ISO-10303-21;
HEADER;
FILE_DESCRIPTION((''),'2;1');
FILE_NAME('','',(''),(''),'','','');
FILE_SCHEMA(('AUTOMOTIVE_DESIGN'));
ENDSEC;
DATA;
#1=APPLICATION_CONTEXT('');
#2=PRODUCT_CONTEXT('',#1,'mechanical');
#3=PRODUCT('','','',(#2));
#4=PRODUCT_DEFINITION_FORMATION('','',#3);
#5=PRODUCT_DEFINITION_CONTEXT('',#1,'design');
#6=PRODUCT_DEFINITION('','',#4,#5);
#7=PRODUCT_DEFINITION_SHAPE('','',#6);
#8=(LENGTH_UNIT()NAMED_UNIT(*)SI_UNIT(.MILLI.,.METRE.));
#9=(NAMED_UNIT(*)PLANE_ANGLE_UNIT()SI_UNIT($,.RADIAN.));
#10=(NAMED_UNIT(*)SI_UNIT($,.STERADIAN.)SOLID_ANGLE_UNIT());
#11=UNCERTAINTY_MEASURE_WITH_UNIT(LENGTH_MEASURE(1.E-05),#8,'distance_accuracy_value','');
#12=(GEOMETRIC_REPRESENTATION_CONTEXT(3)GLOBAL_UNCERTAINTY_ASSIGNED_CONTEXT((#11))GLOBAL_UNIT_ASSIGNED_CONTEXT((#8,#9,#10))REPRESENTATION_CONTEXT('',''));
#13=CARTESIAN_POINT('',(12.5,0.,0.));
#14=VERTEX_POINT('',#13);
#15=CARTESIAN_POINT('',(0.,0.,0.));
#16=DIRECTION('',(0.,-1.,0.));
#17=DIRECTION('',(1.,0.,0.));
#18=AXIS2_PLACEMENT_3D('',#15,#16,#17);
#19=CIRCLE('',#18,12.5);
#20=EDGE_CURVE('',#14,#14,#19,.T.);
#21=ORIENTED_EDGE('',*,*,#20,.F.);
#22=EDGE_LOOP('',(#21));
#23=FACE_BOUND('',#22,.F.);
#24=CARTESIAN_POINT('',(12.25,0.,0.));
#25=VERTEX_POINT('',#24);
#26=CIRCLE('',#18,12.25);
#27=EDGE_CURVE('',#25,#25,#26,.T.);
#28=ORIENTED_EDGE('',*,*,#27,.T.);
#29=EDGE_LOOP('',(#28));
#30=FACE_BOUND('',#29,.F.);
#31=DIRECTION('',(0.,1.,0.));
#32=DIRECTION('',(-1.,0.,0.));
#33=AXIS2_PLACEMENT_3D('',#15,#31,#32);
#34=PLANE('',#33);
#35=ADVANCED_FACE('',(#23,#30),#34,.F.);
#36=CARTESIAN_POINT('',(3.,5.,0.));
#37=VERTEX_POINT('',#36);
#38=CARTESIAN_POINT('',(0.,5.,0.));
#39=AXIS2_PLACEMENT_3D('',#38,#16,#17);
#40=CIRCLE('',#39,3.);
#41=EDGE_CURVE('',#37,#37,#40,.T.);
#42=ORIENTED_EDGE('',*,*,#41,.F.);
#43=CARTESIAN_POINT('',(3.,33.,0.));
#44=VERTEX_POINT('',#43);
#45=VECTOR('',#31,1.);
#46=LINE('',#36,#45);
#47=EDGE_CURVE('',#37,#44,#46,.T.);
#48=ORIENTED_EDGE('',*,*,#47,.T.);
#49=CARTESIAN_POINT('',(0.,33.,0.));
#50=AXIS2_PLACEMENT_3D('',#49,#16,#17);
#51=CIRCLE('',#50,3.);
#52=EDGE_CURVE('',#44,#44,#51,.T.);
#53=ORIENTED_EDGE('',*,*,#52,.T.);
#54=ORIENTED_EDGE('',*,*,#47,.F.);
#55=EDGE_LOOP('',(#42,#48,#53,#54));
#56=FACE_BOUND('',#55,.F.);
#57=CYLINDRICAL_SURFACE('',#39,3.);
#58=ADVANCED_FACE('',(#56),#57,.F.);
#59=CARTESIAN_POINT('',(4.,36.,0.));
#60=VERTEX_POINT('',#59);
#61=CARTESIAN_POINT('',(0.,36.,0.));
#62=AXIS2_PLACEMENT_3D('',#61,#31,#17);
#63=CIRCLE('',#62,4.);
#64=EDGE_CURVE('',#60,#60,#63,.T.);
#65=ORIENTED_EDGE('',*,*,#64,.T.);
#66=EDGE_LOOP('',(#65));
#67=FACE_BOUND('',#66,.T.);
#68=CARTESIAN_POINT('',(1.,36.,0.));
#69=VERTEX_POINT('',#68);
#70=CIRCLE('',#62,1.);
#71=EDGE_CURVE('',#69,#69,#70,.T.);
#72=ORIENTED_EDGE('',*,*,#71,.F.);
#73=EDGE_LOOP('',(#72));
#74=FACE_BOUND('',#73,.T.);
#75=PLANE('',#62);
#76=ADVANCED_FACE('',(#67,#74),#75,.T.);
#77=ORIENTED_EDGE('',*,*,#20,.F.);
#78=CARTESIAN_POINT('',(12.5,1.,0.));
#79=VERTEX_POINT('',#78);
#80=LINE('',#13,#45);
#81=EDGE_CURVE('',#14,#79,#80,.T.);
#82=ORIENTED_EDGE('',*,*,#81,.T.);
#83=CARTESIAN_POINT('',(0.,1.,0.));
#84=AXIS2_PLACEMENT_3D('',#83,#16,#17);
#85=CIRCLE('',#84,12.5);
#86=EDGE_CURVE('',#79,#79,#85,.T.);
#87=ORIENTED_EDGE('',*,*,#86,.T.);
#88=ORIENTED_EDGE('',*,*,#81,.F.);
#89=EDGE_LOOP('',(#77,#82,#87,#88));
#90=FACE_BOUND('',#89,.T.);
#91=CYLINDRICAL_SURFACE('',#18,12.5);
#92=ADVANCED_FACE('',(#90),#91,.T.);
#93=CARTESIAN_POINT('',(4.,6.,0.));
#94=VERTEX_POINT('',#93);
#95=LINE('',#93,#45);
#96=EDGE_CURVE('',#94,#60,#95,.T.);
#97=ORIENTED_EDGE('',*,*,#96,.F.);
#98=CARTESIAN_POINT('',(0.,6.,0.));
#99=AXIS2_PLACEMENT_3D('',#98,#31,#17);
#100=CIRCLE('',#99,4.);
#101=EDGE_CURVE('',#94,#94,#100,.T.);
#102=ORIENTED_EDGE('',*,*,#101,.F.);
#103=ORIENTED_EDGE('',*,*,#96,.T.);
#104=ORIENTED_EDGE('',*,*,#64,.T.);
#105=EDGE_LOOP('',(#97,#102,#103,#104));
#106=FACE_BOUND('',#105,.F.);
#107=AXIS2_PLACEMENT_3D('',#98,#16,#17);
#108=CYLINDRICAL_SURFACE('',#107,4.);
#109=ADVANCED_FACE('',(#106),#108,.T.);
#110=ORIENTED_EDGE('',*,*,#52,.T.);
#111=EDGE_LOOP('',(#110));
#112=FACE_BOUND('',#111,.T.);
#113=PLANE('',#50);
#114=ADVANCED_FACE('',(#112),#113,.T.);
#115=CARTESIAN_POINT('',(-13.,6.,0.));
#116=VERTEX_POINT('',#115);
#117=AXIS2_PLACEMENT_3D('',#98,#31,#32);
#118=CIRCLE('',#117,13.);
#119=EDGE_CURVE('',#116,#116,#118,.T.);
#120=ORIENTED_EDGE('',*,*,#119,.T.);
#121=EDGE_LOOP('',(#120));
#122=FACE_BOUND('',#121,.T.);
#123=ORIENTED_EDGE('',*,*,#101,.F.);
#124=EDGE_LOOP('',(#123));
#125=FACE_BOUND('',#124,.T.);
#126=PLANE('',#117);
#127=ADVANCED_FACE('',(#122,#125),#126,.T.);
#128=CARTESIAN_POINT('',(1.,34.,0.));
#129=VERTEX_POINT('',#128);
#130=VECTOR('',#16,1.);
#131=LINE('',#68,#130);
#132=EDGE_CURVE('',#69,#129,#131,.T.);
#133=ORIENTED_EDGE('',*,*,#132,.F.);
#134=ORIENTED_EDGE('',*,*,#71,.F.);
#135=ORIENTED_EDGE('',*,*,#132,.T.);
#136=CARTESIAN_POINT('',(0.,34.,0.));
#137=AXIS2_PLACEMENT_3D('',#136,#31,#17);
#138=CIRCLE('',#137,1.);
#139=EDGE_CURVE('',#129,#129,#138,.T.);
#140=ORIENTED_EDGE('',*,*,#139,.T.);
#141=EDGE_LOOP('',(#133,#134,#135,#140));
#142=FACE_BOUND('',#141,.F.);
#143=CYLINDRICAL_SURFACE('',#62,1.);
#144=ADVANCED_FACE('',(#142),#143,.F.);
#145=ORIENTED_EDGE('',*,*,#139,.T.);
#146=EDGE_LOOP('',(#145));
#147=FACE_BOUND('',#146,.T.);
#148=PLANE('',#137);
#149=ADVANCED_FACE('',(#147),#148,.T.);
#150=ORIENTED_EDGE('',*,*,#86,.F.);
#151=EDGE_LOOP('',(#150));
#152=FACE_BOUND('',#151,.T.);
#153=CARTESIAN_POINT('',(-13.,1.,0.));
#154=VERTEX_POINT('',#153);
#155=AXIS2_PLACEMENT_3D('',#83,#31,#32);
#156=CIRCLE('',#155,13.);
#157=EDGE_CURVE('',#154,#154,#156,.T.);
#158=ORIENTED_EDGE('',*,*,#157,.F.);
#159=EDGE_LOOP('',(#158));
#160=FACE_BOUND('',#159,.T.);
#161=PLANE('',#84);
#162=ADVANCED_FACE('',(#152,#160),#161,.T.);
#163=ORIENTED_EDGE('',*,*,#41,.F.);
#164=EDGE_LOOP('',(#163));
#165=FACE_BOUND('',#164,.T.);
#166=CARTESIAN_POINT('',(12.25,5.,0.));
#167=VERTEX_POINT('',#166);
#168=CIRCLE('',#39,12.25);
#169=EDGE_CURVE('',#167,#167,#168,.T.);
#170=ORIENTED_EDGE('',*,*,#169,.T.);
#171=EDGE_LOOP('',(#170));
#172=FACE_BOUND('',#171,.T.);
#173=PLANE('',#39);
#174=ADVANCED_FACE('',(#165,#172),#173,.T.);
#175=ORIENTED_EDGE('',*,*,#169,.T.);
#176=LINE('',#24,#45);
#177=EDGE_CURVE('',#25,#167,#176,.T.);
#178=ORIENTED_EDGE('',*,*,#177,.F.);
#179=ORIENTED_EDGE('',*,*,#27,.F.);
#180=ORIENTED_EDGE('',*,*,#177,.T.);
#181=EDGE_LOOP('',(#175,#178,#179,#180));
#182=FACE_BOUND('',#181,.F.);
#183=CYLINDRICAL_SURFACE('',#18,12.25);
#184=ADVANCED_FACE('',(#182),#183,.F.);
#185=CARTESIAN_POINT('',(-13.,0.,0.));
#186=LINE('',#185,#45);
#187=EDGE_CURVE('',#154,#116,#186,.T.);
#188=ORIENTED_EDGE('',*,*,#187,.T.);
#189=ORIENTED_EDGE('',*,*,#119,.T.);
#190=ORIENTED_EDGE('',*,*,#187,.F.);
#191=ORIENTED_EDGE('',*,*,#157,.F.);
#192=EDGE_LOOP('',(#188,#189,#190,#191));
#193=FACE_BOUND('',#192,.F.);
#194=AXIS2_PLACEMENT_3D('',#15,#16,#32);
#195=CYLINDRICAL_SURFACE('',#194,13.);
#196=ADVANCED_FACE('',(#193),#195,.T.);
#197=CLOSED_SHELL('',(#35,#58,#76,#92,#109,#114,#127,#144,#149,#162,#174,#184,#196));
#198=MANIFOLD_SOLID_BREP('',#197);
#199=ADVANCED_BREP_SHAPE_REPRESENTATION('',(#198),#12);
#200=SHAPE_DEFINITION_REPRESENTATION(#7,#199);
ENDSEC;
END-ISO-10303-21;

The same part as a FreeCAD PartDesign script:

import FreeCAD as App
import Part
import Sketcher

doc = App.newDocument("Part")
body = doc.addObject("PartDesign::Body", "Body")

# Sketch on XZ plane
sketch1 = doc.addObject("Sketcher::SketchObject", "Sketch")
body.addObject(sketch1)
sketch1.AttachmentSupport = (doc.XZ_Plane, [""])
sketch1.MapMode = "FlatFace"
sketch1.addGeometry(Part.Circle(App.Vector(0, 0, 0), App.Vector(0, 0, 1), 13), False)
sketch1.addConstraint(Sketcher.Constraint("Coincident", 0, 3, -1, 1))
sketch1.addConstraint(Sketcher.Constraint("Diameter", 0, 26.0))
pad1 = doc.addObject("PartDesign::Pad", "Pad")
body.addObject(pad1)
pad1.Profile = sketch1
pad1.Length = 6
pad1.Reversed = True

# Sketch on XZ plane
sketch2 = doc.addObject("Sketcher::SketchObject", "Sketch001")
body.addObject(sketch2)
sketch2.AttachmentSupport = (doc.XZ_Plane, [""])
sketch2.MapMode = "FlatFace"
sketch2.addGeometry(Part.Circle(App.Vector(0, 0, 0), App.Vector(0, 0, 1), 13), False)
sketch2.addGeometry(Part.Circle(App.Vector(0, 0, 0), App.Vector(0, 0, 1), 12), False)
sketch2.addConstraint(Sketcher.Constraint("Coincident", 0, 3, -1, 1))
sketch2.addConstraint(Sketcher.Constraint("Coincident", 1, 3, -1, 1))
sketch2.addConstraint(Sketcher.Constraint("Diameter", 1, 25.0))
sketch2.addConstraint(Sketcher.Constraint("Diameter", 0, 26.0))
pocket1 = doc.addObject("PartDesign::Pocket", "Pocket")
body.addObject(pocket1)
pocket1.Profile = sketch2
pocket1.Length = 1

# Sketch on XZ plane
sketch3 = doc.addObject("Sketcher::SketchObject", "Sketch002")
body.addObject(sketch3)
sketch3.AttachmentSupport = (doc.XZ_Plane, [""])
sketch3.MapMode = "FlatFace"
sketch3.addGeometry(Part.Circle(App.Vector(0, 0, 0), App.Vector(0, 0, 1), 12), False)
sketch3.addConstraint(Sketcher.Constraint("Coincident", 0, 3, -1, 1))
sketch3.addConstraint(Sketcher.Constraint("Diameter", 0, 24.5))
pocket2 = doc.addObject("PartDesign::Pocket", "Pocket001")
body.addObject(pocket2)
pocket2.Profile = sketch3
pocket2.Length = 5

# Sketch on XZ plane
sketch4 = doc.addObject("Sketcher::SketchObject", "Sketch003")
body.addObject(sketch4)
sketch4.AttachmentSupport = (doc.XZ_Plane, [""])
sketch4.MapMode = "FlatFace"
sketch4.AttachmentOffset = App.Placement(App.Vector(0, 0, -6), App.Rotation())
sketch4.addGeometry(Part.Circle(App.Vector(0, 0, 0), App.Vector(0, 0, 1), 4), False)
sketch4.addConstraint(Sketcher.Constraint("Coincident", 0, 3, -1, 1))
sketch4.addConstraint(Sketcher.Constraint("Diameter", 0, 8.0))
pad2 = doc.addObject("PartDesign::Pad", "Pad001")
body.addObject(pad2)
pad2.Profile = sketch4
pad2.Length = 30
pad2.Reversed = True

# Sketch on XZ plane
sketch5 = doc.addObject("Sketcher::SketchObject", "Sketch004")
body.addObject(sketch5)
sketch5.AttachmentSupport = (doc.XZ_Plane, [""])
sketch5.MapMode = "FlatFace"
sketch5.AttachmentOffset = App.Placement(App.Vector(0, 0, -36), App.Rotation())
sketch5.addGeometry(Part.Circle(App.Vector(0, 0, 0), App.Vector(0, 0, 1), 1), False)
sketch5.addConstraint(Sketcher.Constraint("Coincident", 0, 3, -1, 1))
sketch5.addConstraint(Sketcher.Constraint("Diameter", 0, 2.0))
pocket3 = doc.addObject("PartDesign::Pocket", "Pocket002")
body.addObject(pocket3)
pocket3.Profile = sketch5
pocket3.Length = 2
pocket3.Reversed = True

# Sketch on XZ plane
sketch6 = doc.addObject("Sketcher::SketchObject", "Sketch005")
body.addObject(sketch6)
sketch6.AttachmentSupport = (doc.XZ_Plane, [""])
sketch6.MapMode = "FlatFace"
sketch6.AttachmentOffset = App.Placement(App.Vector(0, 0, -5), App.Rotation())
sketch6.addGeometry(Part.Circle(App.Vector(0, 0, 0), App.Vector(0, 0, 1), 3), False)
sketch6.addConstraint(Sketcher.Constraint("Coincident", 0, 3, -1, 1))
sketch6.addConstraint(Sketcher.Constraint("Diameter", 0, 6.0))
pocket4 = doc.addObject("PartDesign::Pocket", "Pocket003")
body.addObject(pocket4)
pocket4.Profile = sketch6
pocket4.Length = 28

doc.recompute()
